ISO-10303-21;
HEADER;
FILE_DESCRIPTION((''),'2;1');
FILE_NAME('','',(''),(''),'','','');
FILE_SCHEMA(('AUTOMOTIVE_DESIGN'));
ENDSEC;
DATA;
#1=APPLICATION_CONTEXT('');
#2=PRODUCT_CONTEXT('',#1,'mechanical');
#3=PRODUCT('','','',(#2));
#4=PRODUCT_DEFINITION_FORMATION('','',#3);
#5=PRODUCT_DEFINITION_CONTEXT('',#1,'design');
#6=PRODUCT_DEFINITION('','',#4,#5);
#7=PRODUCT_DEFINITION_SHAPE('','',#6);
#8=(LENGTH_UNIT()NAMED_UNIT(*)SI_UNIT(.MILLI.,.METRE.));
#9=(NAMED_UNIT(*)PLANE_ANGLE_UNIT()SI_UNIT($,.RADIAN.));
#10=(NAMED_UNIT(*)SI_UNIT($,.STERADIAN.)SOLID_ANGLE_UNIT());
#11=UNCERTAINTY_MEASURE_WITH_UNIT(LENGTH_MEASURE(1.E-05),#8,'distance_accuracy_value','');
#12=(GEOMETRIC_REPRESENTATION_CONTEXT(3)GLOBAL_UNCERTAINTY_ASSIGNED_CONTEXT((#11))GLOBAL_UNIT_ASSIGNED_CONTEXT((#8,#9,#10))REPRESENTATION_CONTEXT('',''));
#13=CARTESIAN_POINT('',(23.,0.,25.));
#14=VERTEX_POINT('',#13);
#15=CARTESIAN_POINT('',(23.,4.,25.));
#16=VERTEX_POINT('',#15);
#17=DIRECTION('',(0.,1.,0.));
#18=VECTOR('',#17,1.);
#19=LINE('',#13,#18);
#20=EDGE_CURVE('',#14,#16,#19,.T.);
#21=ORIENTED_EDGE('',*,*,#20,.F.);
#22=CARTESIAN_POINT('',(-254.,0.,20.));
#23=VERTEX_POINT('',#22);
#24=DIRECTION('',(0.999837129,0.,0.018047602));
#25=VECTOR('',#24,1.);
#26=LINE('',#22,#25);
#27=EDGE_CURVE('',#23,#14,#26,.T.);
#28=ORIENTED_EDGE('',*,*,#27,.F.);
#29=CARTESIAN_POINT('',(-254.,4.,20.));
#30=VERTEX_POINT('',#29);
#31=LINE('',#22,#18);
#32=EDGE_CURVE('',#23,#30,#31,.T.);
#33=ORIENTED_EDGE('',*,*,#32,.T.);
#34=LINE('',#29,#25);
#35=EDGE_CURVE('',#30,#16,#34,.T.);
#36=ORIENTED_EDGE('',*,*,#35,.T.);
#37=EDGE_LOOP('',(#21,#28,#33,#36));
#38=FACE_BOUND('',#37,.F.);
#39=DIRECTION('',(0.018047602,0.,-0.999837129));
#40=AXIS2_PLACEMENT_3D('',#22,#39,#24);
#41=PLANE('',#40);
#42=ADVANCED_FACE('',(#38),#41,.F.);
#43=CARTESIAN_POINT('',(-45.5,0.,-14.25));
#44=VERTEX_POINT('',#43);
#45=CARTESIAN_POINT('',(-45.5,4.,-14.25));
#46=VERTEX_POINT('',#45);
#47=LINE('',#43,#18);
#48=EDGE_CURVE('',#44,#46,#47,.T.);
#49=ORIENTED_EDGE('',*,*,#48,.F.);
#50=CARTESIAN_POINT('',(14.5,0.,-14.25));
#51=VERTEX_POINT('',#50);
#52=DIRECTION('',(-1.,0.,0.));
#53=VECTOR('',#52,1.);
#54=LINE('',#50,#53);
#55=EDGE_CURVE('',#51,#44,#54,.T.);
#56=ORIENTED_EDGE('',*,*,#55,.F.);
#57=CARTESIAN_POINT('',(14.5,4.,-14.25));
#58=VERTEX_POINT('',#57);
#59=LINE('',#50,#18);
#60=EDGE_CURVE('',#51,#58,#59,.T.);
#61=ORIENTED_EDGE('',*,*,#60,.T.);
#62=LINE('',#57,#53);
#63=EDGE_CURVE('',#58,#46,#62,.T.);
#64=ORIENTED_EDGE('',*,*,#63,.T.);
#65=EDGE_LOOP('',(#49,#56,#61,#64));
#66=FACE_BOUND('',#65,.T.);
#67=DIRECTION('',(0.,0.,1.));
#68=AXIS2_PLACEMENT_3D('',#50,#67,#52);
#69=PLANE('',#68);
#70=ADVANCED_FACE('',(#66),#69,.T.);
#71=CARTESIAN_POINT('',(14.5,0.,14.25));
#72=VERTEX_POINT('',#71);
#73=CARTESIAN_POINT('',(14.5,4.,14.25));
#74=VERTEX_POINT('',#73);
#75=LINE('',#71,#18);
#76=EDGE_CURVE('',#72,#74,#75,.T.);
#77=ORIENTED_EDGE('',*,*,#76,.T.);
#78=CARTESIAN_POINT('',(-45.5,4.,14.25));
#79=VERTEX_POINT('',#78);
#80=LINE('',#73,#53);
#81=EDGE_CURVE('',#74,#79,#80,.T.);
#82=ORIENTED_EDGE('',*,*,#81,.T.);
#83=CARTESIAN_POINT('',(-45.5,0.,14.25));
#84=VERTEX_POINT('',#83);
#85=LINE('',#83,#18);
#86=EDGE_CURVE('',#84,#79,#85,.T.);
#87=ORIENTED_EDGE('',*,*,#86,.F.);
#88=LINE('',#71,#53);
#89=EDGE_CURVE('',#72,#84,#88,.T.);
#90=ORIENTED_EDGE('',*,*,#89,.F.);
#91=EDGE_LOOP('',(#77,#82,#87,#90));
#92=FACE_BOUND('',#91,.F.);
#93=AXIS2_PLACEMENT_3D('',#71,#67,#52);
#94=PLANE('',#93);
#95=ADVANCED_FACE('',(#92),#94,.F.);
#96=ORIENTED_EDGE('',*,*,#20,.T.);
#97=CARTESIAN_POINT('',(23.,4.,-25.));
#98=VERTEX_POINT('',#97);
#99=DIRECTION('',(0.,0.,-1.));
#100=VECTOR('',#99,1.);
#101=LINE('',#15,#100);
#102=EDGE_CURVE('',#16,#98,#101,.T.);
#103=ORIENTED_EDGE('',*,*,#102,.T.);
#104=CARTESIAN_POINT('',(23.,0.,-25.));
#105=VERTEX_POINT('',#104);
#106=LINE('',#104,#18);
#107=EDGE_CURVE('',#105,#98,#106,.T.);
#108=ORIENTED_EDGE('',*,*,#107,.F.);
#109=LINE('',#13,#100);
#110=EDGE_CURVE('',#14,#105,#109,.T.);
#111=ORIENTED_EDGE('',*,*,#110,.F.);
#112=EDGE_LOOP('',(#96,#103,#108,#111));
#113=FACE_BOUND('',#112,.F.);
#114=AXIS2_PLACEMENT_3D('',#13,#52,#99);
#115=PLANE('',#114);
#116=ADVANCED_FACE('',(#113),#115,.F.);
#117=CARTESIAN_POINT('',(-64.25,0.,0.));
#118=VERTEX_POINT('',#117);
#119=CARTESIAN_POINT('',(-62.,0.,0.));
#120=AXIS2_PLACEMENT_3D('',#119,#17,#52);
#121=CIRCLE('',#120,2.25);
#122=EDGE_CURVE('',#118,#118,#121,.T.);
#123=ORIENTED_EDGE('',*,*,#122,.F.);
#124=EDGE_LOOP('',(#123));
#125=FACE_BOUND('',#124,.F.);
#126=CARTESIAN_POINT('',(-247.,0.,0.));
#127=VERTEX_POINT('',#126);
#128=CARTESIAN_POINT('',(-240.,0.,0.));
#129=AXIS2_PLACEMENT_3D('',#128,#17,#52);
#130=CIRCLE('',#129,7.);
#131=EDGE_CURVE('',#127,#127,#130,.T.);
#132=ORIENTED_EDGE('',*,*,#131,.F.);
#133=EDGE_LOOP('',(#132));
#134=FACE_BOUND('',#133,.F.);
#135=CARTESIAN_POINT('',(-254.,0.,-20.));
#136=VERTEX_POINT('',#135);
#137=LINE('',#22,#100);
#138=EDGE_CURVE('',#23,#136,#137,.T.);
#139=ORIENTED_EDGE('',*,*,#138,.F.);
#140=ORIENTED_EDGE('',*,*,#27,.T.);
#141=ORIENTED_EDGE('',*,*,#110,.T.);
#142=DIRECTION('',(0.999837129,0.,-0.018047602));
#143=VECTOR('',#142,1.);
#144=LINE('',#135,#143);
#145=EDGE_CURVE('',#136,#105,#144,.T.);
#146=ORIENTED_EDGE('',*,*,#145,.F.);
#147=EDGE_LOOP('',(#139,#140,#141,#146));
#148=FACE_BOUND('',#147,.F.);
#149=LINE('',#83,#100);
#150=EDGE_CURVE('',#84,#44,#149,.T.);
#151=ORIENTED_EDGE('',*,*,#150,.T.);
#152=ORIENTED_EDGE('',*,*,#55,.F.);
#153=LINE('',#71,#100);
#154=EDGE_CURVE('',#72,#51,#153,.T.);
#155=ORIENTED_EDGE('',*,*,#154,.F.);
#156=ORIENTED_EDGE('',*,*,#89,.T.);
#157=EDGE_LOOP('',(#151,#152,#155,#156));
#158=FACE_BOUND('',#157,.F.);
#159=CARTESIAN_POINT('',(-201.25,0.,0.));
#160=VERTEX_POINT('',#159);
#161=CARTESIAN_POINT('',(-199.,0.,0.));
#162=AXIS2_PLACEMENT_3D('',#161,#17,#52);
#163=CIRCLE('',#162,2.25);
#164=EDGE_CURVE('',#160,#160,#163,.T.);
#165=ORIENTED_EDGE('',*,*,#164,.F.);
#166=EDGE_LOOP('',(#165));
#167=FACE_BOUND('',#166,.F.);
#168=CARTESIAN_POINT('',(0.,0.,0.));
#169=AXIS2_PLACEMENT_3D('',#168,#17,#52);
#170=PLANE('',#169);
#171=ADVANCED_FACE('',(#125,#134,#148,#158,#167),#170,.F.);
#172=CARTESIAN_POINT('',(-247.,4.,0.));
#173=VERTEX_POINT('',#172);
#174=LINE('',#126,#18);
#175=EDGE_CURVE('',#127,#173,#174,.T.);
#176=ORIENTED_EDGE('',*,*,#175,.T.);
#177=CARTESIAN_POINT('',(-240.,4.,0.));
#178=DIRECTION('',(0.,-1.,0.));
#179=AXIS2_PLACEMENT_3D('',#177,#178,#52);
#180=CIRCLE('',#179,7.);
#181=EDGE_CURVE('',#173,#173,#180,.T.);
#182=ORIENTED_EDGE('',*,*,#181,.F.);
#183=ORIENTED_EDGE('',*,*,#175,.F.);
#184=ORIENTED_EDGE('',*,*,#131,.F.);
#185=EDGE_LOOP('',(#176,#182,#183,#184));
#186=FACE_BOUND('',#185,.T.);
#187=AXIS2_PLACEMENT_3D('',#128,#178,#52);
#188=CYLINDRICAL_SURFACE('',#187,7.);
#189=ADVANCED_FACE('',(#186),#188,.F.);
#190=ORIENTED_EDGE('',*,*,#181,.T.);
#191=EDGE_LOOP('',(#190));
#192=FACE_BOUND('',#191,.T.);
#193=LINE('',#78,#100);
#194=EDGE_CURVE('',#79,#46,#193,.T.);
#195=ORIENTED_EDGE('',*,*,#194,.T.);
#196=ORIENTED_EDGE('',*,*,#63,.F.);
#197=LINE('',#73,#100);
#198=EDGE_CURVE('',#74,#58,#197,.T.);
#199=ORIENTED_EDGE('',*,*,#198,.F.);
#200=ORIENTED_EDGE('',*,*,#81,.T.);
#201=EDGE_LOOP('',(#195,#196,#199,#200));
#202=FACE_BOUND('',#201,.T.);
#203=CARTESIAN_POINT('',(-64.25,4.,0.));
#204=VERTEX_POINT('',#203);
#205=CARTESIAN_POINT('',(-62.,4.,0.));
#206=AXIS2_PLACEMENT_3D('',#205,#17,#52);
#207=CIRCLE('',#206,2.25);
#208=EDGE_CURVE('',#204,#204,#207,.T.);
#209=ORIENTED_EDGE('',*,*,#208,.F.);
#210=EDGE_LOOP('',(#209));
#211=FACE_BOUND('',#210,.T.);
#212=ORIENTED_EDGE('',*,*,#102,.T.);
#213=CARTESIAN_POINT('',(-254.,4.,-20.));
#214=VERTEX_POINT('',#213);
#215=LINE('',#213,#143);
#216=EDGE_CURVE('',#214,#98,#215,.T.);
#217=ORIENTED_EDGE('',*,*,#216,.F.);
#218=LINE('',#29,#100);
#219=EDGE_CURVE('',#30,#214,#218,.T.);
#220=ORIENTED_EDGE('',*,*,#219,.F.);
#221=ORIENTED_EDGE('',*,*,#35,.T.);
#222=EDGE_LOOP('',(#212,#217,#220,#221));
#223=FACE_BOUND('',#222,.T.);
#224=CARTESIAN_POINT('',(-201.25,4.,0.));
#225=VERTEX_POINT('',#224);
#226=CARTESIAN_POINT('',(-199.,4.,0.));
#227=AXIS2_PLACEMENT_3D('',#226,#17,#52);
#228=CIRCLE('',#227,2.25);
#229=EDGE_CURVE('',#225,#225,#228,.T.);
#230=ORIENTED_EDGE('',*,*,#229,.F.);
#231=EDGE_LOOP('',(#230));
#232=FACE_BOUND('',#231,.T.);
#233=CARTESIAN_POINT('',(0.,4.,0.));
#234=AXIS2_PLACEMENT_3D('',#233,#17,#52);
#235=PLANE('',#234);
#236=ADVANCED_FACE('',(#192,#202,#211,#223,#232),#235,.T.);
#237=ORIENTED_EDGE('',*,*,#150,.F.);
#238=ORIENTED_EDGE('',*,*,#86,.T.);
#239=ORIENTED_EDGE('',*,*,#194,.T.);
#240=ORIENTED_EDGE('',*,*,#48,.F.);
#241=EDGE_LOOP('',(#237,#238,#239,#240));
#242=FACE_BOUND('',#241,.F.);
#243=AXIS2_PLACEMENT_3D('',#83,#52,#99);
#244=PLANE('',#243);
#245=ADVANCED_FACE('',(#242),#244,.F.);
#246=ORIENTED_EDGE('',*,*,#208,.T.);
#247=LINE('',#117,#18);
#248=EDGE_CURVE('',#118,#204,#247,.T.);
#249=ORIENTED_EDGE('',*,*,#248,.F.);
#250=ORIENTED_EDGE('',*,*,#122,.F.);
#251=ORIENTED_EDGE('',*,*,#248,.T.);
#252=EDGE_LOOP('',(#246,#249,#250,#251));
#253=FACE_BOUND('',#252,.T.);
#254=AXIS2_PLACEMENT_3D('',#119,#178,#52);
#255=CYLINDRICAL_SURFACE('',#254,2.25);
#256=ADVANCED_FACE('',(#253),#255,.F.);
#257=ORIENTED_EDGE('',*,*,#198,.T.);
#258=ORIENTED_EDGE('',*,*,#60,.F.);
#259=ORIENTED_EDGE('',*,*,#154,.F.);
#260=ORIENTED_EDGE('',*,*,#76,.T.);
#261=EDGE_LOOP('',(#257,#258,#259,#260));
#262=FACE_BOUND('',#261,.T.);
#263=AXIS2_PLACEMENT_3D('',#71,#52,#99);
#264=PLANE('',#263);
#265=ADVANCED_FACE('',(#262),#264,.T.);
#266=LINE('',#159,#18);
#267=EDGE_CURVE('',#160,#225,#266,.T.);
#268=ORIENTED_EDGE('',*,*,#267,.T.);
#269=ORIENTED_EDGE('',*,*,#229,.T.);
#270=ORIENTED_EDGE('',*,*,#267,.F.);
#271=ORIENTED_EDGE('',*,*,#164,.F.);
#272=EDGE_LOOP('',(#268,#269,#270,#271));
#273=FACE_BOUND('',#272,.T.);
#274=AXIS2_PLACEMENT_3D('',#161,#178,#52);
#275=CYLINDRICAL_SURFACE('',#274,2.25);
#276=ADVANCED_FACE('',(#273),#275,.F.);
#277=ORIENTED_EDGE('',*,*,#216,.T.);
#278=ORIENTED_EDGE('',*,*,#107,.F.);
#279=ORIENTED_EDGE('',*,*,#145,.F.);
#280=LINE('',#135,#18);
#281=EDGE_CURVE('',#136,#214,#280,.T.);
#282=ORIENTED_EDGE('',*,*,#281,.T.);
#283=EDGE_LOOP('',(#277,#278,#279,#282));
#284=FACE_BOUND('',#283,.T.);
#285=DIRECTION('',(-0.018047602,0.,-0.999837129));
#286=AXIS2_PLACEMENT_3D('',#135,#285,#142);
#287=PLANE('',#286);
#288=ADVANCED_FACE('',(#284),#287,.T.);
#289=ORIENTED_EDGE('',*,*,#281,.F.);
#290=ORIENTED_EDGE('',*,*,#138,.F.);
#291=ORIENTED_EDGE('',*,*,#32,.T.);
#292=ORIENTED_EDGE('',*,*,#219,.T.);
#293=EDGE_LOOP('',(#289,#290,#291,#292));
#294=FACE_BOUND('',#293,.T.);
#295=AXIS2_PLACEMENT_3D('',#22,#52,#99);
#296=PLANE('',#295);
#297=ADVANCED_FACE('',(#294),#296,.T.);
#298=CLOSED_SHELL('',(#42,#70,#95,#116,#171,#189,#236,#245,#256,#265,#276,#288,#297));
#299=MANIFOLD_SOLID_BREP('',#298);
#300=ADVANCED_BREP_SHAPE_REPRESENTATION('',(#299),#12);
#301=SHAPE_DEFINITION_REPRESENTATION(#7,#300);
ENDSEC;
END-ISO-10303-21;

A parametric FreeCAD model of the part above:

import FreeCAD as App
import Part
import Sketcher

V = App.Vector
Q = App.Units.Quantity


def add_polygon(sketch, points):
    """Adds a closed chain of lines whose ends are joined by coincident constraints."""
    first, n = sketch.GeometryCount, len(points)
    for a, b in zip(points, points[1:] + points[:1]):
        sketch.addGeometry(Part.LineSegment(App.Vector(*a, 0), App.Vector(*b, 0)), False)
    for i in range(n):
        sketch.addConstraint(Sketcher.Constraint("Coincident", first + i, 2, first + (i + 1) % n, 1))

doc = App.newDocument("Part")
body = doc.addObject("PartDesign::Body", "Body")

# Sketch on XZ plane
sketch1 = body.newObject("Sketcher::SketchObject", "Sketch")
sketch1.AttachmentSupport = (doc.getObject("XZ_Plane"), [""])
sketch1.MapMode = "FlatFace"
add_polygon(sketch1, [(-254, -20), (-254, 20), (23, 25), (23, -25)])  # lines 0-3
add_polygon(sketch1, [(14.5, 14.2), (-45.5, 14.2), (-45.5, -14.2), (14.5, -14.2)])  # lines 4-7
sketch1.addGeometry(Part.Circle(V(-62, 0, 0), V(0, 0, 1), 2.2), False)  # 8
sketch1.addGeometry(Part.Circle(V(-199, 0, 0), V(0, 0, 1), 2.2), False)  # 9
sketch1.addGeometry(Part.Circle(V(-240, 0, 0), V(0, 0, 1), 7), False)  # 10
sketch1.addConstraint([
    Sketcher.Constraint("Vertical", 0),
    Sketcher.Constraint("Vertical", 2),
    Sketcher.Constraint("Horizontal", 4),
    Sketcher.Constraint("Vertical", 5),
    Sketcher.Constraint("Horizontal", 6),
    Sketcher.Constraint("Vertical", 7),
    Sketcher.Constraint("Equal", 8, 9),
    Sketcher.Constraint("PointOnObject", 8, 3, -1),
    Sketcher.Constraint("PointOnObject", 9, 3, -1),
    Sketcher.Constraint("PointOnObject", 10, 3, -1),
    Sketcher.Constraint("Equal", 1, 3),
    Sketcher.Constraint("Diameter", 10, Q("14 mm")),
    Sketcher.Constraint("DistanceY", 2, 2, 2, 1, Q("50 mm")),
    Sketcher.Constraint("DistanceX", 10, 3, -1, 1, Q("240 mm")),
    Sketcher.Constraint("DistanceY", -1, 1, 0, 2, Q("20 mm")),
    Sketcher.Constraint("DistanceY", 3, 2, -1, 1, Q("20 mm")),
    Sketcher.Constraint("DistanceX", 0, 2, 10, 3, Q("14 mm")),
    Sketcher.Constraint("Diameter", 8, Q("4.5 mm")),
    Sketcher.Constraint("DistanceX", 4, 2, 4, 1, Q("60 mm")),
    Sketcher.Constraint("DistanceY", 5, 2, 5, 1, Q("28.5 mm")),
    Sketcher.Constraint("DistanceX", 8, 3, -1, 1, Q("62 mm")),
    Sketcher.Constraint("DistanceX", 9, 3, -1, 1, Q("199 mm")),
    Sketcher.Constraint("DistanceX", -1, 1, 1, 2, Q("23 mm")),
    Sketcher.Constraint("DistanceX", 4, 2, -1, 1, Q("45.5 mm")),
    Sketcher.Constraint("DistanceY", -1, 1, 4, 2, Q("14.25 mm")),
])
pad1 = body.newObject("PartDesign::Pad", "Pad")
pad1.Profile = sketch1
pad1.Length = 4
pad1.Reversed = True

doc.recompute()
